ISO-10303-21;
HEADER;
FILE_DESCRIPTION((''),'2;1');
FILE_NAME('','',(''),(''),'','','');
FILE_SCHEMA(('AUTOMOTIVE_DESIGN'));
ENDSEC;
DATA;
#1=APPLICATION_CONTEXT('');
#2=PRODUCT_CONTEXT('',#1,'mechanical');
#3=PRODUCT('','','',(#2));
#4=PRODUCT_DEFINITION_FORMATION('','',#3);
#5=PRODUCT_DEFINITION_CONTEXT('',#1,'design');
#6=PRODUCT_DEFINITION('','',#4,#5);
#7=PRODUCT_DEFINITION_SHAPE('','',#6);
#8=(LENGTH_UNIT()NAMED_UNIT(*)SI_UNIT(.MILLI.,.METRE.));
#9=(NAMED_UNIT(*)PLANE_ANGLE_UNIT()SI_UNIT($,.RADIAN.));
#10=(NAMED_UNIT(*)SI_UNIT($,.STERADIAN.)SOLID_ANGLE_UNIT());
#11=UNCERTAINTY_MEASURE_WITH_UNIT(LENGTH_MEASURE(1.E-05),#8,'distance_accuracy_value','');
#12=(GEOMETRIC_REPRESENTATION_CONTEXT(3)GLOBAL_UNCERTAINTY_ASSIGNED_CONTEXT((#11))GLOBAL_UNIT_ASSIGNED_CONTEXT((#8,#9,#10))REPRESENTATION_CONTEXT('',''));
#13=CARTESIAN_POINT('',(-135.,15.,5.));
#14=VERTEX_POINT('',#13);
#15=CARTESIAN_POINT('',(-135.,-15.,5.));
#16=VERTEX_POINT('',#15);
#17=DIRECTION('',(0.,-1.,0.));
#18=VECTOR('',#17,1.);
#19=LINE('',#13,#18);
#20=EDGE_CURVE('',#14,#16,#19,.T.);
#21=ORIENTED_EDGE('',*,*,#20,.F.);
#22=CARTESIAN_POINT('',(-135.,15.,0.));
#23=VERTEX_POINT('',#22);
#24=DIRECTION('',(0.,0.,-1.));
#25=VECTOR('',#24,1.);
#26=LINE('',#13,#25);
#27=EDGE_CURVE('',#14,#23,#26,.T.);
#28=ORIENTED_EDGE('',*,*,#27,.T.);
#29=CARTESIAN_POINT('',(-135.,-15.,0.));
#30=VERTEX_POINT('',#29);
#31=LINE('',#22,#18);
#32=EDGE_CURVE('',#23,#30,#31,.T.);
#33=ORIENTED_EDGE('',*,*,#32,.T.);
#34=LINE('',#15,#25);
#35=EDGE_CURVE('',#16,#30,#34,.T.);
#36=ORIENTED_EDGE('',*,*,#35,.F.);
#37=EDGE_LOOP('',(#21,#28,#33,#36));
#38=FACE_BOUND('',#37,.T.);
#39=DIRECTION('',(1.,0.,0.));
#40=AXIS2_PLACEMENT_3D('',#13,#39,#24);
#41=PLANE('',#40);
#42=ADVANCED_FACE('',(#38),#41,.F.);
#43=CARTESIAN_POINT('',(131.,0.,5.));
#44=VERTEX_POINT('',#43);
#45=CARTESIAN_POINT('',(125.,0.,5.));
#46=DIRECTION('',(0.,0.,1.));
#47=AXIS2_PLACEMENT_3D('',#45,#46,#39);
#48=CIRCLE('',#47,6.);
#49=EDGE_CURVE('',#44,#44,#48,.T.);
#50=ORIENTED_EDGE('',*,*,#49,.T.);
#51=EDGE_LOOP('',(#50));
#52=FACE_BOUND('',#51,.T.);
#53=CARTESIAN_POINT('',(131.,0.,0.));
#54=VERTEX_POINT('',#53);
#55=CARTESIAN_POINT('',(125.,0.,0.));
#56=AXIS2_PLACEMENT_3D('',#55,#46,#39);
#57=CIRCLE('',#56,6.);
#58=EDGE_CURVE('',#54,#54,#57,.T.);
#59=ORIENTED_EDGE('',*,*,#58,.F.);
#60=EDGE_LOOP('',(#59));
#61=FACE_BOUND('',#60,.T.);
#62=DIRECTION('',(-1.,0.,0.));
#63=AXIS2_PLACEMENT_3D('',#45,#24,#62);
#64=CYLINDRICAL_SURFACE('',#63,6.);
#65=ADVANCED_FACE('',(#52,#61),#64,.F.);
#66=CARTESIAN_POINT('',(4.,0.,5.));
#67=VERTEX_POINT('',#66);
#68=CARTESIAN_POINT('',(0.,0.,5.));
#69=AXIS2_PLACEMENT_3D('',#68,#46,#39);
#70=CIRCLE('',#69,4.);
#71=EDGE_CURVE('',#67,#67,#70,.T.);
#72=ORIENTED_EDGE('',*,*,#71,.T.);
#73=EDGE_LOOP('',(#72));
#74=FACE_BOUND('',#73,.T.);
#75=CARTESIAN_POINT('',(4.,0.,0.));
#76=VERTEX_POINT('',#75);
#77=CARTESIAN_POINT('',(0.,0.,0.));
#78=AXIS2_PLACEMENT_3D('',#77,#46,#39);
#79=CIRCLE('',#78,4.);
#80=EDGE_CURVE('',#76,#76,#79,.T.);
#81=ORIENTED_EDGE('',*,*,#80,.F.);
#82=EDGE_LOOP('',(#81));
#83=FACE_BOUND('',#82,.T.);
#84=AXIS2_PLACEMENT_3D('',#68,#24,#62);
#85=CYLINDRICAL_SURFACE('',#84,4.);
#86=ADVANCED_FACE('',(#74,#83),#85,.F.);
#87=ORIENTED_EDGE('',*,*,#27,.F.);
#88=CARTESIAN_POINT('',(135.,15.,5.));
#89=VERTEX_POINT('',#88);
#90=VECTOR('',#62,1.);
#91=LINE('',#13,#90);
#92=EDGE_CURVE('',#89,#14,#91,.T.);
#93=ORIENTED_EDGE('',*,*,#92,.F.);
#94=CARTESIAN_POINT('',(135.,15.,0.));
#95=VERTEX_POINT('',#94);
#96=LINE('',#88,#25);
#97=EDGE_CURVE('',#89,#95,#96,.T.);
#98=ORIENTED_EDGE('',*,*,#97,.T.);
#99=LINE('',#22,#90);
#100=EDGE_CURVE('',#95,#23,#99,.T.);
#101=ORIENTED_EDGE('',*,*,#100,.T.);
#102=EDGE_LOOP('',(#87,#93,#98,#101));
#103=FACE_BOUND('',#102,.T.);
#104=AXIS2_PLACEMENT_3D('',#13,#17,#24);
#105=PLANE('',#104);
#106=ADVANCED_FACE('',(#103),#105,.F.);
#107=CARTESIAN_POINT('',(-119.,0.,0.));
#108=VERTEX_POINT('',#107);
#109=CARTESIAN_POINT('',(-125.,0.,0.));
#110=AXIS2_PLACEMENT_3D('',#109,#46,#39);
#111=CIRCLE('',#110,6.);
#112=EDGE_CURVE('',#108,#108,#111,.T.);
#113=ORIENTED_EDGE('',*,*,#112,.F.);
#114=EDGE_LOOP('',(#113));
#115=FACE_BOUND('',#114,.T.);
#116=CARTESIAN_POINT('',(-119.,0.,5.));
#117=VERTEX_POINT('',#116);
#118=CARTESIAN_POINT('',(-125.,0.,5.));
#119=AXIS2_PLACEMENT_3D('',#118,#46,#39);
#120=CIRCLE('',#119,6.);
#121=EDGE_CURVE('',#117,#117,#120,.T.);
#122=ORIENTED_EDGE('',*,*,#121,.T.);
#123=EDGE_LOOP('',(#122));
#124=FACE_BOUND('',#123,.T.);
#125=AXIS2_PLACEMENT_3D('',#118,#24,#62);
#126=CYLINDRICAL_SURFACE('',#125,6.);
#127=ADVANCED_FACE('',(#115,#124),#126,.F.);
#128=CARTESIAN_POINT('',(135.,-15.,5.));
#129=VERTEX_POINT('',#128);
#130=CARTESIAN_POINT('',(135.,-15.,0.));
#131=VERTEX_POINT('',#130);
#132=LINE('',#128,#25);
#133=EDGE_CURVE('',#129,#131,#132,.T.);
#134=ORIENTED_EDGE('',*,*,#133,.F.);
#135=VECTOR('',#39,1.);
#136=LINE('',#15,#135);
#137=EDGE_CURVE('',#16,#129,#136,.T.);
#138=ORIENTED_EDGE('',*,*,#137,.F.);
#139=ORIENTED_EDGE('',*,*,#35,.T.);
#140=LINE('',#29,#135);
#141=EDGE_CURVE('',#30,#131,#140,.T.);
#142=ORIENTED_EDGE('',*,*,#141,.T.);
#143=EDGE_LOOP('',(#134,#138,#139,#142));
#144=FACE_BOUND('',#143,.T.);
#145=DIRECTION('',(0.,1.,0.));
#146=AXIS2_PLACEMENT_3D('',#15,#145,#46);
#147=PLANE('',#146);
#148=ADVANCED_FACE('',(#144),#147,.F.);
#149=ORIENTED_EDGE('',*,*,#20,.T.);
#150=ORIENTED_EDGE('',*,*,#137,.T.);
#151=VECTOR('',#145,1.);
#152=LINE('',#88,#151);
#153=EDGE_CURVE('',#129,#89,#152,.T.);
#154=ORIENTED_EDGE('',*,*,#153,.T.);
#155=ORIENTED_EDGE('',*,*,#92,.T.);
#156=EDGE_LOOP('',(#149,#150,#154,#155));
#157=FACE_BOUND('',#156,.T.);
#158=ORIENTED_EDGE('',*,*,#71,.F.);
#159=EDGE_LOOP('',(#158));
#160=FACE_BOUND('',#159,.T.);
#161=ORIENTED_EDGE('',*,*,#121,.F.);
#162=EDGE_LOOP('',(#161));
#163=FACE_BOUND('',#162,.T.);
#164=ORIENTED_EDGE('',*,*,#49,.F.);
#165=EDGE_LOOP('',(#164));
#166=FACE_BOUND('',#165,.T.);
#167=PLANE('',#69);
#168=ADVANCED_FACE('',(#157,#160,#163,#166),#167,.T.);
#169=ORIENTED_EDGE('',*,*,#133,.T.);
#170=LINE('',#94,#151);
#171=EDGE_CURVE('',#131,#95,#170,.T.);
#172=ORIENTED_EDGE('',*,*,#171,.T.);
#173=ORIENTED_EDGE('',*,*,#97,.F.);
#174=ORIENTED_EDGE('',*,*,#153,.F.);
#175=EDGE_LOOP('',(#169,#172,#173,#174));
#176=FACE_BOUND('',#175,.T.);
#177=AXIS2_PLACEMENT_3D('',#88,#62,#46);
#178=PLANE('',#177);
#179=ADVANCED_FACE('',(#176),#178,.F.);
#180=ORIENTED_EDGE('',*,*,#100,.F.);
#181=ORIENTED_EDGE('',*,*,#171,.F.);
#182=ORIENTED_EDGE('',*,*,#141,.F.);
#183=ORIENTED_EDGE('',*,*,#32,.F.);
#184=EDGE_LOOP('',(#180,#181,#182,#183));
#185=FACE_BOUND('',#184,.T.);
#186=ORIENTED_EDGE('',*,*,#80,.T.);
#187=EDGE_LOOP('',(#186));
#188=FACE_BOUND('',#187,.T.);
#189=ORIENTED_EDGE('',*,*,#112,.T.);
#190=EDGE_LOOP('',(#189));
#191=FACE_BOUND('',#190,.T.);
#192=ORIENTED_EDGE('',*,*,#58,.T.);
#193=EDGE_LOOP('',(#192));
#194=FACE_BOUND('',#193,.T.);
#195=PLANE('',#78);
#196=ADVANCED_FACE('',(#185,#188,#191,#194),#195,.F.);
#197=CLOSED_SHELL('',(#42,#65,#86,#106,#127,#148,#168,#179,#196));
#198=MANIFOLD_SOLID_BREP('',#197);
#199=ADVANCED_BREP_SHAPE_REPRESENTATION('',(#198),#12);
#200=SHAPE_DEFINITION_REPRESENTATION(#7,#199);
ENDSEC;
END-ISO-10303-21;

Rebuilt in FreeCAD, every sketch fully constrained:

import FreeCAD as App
import Part
import Sketcher

doc = App.newDocument("Part")
body = doc.addObject("PartDesign::Body", "Body")

sketch1 = body.newObject("Sketcher::SketchObject", "Sketch")
sketch1.AttachmentSupport = (doc.getObject("XY_Plane"), [""])
sketch1.MapMode = "FlatFace"
sketch1.addGeometry(Part.LineSegment(App.Vector(-135, 15, 0), App.Vector(-135, -15, 0)), False)
sketch1.addGeometry(Part.LineSegment(App.Vector(-135, -15, 0), App.Vector(135, -15, 0)), False)
sketch1.addGeometry(Part.LineSegment(App.Vector(135, -15, 0), App.Vector(135, 15, 0)), False)
sketch1.addGeometry(Part.LineSegment(App.Vector(135, 15, 0), App.Vector(-135, 15, 0)), False)
sketch1.addGeometry(Part.Circle(App.Vector(-125, 0, 0), App.Vector(0, 0, 1), 6), False)
sketch1.addGeometry(Part.Circle(App.Vector(0, 0, 0), App.Vector(0, 0, 1), 4), False)
sketch1.addGeometry(Part.Circle(App.Vector(125, 0, 0), App.Vector(0, 0, 1), 6), False)
sketch1.addConstraint(Sketcher.Constraint("Coincident", 0, 2, 1, 1))
sketch1.addConstraint(Sketcher.Constraint("Coincident", 1, 2, 2, 1))
sketch1.addConstraint(Sketcher.Constraint("Coincident", 2, 2, 3, 1))
sketch1.addConstraint(Sketcher.Constraint("Coincident", 3, 2, 0, 1))
sketch1.addConstraint(Sketcher.Constraint("Vertical", 0))
sketch1.addConstraint(Sketcher.Constraint("Horizontal", 1))
sketch1.addConstraint(Sketcher.Constraint("Vertical", 2))
sketch1.addConstraint(Sketcher.Constraint("Horizontal", 3))
sketch1.addConstraint(Sketcher.Constraint("Coincident", 5, 3, -1, 1))
sketch1.addConstraint(Sketcher.Constraint("Equal", 4, 6))
sketch1.addConstraint(Sketcher.Constraint("Symmetric", 4, 3, 6, 3, -1, 1))
sketch1.addConstraint(Sketcher.Constraint("Symmetric", 0, 2, 2, 2, -1, 1))
sketch1.addConstraint(Sketcher.Constraint("PointOnObject", 4, 3, -1))
sketch1.addConstraint(Sketcher.Constraint("Diameter", 4, 12.0))
sketch1.addConstraint(Sketcher.Constraint("Diameter", 5, 8.0))
sketch1.addConstraint(Sketcher.Constraint("DistanceX", 1, 1, 1, 2, 270.0))
sketch1.addConstraint(Sketcher.Constraint("DistanceY", 0, 2, 0, 1, 30.0))
sketch1.addConstraint(Sketcher.Constraint("DistanceX", 4, 3, -1, 1, 125.0))
pad1 = body.newObject("PartDesign::Pad", "Pad")
pad1.Profile = sketch1
pad1.Length = 5

doc.recompute()
